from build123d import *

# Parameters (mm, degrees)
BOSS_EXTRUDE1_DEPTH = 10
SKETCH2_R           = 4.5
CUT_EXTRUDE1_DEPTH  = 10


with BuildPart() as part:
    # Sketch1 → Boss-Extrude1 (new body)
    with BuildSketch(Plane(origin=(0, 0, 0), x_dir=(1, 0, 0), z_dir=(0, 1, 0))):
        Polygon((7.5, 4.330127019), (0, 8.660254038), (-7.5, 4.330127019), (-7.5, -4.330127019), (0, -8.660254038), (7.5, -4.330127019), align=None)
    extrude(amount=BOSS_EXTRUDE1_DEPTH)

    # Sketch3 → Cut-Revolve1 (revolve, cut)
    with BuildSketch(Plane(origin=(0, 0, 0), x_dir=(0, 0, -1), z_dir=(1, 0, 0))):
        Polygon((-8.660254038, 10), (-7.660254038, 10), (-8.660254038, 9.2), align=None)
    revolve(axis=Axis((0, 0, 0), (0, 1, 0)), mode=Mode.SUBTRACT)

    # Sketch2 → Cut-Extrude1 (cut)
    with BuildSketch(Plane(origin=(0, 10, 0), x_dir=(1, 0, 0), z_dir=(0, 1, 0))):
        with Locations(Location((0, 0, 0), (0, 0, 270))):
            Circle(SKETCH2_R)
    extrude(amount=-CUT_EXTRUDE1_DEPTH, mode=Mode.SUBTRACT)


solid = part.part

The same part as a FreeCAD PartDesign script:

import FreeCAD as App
import Part
import Sketcher
from FreeCAD import Vector
Q = App.Units.Quantity


def add_polygon(sketch, points):
    """Adds a closed chain of lines whose ends are joined by coincident constraints."""
    first, n = sketch.GeometryCount, len(points)
    for a, b in zip(points, points[1:] + points[:1]):
        sketch.addGeometry(Part.LineSegment(App.Vector(*a, 0), App.Vector(*b, 0)), False)
    for i in range(n):
        sketch.addConstraint(Sketcher.Constraint("Coincident", first + i, 2, first + (i + 1) % n, 1))

doc = App.newDocument("Part")
body = doc.addObject("PartDesign::Body", "Body")

sketch1 = body.newObject("Sketcher::SketchObject", "Sketch")
sketch1.AttachmentSupport = (doc.getObject("XZ_Plane"), [""])
sketch1.MapMode = "FlatFace"
add_polygon(sketch1, [(8, -4), (0, -9), (-8, -4), (-8, 4), (0, 9), (8, 4)])
sketch1.addConstraint([
    Sketcher.Constraint("Vertical", 2),
    Sketcher.Constraint("Vertical", 5),
    Sketcher.Constraint("Symmetric", 0, 2, 3, 2, -1, 1),
    Sketcher.Constraint("Symmetric", 1, 2, 4, 2, -1, 1),
    Sketcher.Constraint("PointOnObject", 0, 2, -2),
    Sketcher.Constraint("Parallel", 0, 3),
    Sketcher.Constraint("Horizontal", 2, 2, 4, 2),
    Sketcher.Constraint("Angle", 0, Q("-150 deg")),
    Sketcher.Constraint("DistanceX", 2, 2, 4, 2, Q("15 mm")),
    Sketcher.Constraint("DistanceY", 2, 1, 2, 2, Q("8.660254 mm")),
])
pad1 = body.newObject("PartDesign::Pad", "Pad")
pad1.Profile = sketch1
pad1.Length = 10
pad1.Reversed = True

sketch2 = body.newObject("Sketcher::SketchObject", "Sketch001")
sketch2.AttachmentSupport = (doc.getObject("YZ_Plane"), [""])
sketch2.MapMode = "FlatFace"
add_polygon(sketch2, [(10, 7.7), (10, 8.7), (9.2, 8.7)])
sketch2.addConstraint([
    Sketcher.Constraint("Vertical", 0),
    Sketcher.Constraint("Horizontal", 1),
    Sketcher.Constraint("DistanceY", 0, 1, 0, 2, Q("1 mm")),
    Sketcher.Constraint("DistanceX", 1, 2, 1, 1, Q("0.8 mm")),
    Sketcher.Constraint("DistanceX", -1, 1, 0, 2, Q("10 mm")),
    Sketcher.Constraint("DistanceY", -1, 1, 0, 2, Q("8.660254 mm")),
])
groove = body.newObject("PartDesign::Groove", "Groove")
groove.Profile = sketch2
groove.ReferenceAxis = (sketch2, ["H_Axis"])
groove.Angle = 360

sketch3 = body.newObject("Sketcher::SketchObject", "Sketch002")
sketch3.AttachmentSupport = (doc.getObject("XZ_Plane"), [""])
sketch3.MapMode = "FlatFace"
sketch3.AttachmentOffset = App.Placement(Vector(0, 0, -10), App.Rotation())
sketch3.addGeometry(Part.Circle(Vector(0, 0, 0), Vector(0, 0, 1), 4.5), False)
sketch3.addConstraint([
    Sketcher.Constraint("Coincident", 0, 3, -1, 1),
    Sketcher.Constraint("Diameter", 0, Q("9 mm")),
])
pocket1 = body.newObject("PartDesign::Pocket", "Pocket")
pocket1.Profile = sketch3
pocket1.Length = 10
pocket1.Reversed = True

doc.recompute()
